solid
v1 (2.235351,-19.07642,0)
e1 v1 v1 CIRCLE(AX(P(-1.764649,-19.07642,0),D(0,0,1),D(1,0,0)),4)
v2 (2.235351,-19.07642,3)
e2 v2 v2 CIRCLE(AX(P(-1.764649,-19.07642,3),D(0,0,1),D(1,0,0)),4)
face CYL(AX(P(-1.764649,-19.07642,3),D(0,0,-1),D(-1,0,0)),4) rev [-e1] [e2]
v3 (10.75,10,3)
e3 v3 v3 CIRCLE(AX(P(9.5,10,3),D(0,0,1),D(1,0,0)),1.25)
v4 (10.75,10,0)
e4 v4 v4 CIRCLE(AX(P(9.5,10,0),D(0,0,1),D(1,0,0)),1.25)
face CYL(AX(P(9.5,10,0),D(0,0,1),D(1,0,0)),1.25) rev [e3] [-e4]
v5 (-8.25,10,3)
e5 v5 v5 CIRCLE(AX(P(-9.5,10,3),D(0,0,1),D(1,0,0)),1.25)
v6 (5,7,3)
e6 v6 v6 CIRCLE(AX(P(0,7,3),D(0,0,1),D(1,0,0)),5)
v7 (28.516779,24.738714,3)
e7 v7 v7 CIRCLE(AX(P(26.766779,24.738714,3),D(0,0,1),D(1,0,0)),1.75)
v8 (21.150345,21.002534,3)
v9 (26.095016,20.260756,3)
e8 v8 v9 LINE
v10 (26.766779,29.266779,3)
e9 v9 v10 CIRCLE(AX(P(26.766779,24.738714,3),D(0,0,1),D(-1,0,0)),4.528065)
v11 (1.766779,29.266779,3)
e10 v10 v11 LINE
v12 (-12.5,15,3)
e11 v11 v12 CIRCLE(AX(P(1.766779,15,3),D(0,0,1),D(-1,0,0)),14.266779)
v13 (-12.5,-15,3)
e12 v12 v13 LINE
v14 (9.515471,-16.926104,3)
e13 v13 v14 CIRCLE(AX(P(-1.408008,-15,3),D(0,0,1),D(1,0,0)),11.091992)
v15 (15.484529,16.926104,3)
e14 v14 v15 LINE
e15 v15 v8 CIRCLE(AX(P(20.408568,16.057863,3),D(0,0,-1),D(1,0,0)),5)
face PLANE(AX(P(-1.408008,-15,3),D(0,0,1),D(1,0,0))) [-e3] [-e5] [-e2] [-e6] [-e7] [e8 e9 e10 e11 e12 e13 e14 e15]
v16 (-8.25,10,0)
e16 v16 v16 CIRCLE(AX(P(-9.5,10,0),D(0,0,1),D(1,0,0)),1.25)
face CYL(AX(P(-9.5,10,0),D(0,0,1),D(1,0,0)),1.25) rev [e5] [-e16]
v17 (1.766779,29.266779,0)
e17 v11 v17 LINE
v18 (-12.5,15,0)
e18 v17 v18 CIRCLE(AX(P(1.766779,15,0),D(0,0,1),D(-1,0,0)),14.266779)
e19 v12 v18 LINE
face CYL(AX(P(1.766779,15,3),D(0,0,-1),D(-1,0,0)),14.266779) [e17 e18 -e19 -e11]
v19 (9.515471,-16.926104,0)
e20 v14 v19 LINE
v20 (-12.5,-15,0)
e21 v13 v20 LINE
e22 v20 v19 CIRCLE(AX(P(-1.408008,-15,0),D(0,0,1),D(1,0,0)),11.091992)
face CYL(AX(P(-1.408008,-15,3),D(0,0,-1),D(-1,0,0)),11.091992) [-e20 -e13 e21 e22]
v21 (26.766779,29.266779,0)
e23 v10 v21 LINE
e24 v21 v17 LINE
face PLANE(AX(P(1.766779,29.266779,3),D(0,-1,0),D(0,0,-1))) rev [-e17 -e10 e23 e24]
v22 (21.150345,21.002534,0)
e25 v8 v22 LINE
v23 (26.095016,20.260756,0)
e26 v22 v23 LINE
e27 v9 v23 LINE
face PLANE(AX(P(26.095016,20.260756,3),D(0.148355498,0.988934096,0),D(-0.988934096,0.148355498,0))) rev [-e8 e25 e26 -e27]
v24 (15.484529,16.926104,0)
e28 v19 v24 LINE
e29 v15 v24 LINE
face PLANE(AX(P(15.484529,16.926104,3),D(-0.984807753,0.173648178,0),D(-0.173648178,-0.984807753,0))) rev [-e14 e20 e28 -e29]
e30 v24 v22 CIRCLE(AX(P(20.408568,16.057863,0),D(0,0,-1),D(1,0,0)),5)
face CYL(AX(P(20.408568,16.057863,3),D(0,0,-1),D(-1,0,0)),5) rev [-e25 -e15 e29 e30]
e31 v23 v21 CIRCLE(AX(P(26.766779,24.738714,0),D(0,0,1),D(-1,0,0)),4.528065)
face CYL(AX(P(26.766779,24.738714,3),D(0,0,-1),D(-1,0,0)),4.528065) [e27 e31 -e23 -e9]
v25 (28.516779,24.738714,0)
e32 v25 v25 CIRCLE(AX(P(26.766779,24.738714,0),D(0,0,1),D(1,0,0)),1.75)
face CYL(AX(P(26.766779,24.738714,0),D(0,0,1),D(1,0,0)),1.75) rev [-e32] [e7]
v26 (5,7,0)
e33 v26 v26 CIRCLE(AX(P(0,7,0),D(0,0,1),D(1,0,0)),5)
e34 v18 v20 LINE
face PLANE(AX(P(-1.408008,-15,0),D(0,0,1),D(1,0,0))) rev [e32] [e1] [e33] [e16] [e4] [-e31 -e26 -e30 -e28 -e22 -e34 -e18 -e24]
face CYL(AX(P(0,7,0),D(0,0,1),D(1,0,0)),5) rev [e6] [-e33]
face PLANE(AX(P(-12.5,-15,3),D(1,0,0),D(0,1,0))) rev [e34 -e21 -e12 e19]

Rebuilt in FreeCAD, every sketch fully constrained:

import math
import FreeCAD as App
import Part
import Sketcher

V = App.Vector
Q = App.Units.Quantity

doc = App.newDocument("Part")
body = doc.addObject("PartDesign::Body", "Body")

sketch1 = doc.addObject("Sketcher::SketchObject", "Sketch")
body.addObject(sketch1)
sketch1.AttachmentSupport = (doc.XY_Plane, [""])
sketch1.MapMode = "FlatFace"
sketch1.addGeometry(Part.LineSegment(V(-12.5, 15, 0), V(-12.5, -15, 0)), False)
sketch1.addGeometry(Part.ArcOfCircle(Part.Circle(V(-1.4, -15, 0), V(0, 0, 1), 11.1), math.radians(180), math.radians(350)), False)
sketch1.addGeometry(Part.LineSegment(V(9.5, -16.9, 0), V(15.5, 16.9, 0)), False)
sketch1.addGeometry(Part.ArcOfCircle(Part.Circle(V(20.4, 16.1, 0), V(0, 0, 1), 5), math.radians(81), math.radians(170)), False)
sketch1.addGeometry(Part.LineSegment(V(21.2, 21, 0), V(26.1, 20.3, 0)), False)
sketch1.addGeometry(Part.ArcOfCircle(Part.Circle(V(26.8, 24.7, 0), V(0, 0, 1), 4.5), math.radians(-99), math.radians(90)), False)
sketch1.addGeometry(Part.LineSegment(V(26.8, 29.3, 0), V(1.8, 29.3, 0)), False)
sketch1.addGeometry(Part.ArcOfCircle(Part.Circle(V(1.8, 15, 0), V(0, 0, 1), 14.3), math.radians(90), math.radians(180)), False)
sketch1.addGeometry(Part.Circle(V(-1.8, -19.1, 0), V(0, 0, 1), 4), False)
sketch1.addConstraint(Sketcher.Constraint("Tangent", 0, 2, 1, 1))
sketch1.addConstraint(Sketcher.Constraint("Tangent", 1, 2, 2, 1))
sketch1.addConstraint(Sketcher.Constraint("Tangent", 2, 2, 3, 2))
sketch1.addConstraint(Sketcher.Constraint("Tangent", 3, 1, 4, 1))
sketch1.addConstraint(Sketcher.Constraint("Tangent", 4, 2, 5, 1))
sketch1.addConstraint(Sketcher.Constraint("Tangent", 5, 2, 6, 1))
sketch1.addConstraint(Sketcher.Constraint("Tangent", 6, 2, 7, 1))
sketch1.addConstraint(Sketcher.Constraint("Tangent", 7, 2, 0, 1))
sketch1.addConstraint(Sketcher.Constraint("Vertical", 0))
sketch1.addConstraint(Sketcher.Constraint("Horizontal", 6))
sketch1.addConstraint(Sketcher.Constraint("Diameter", 8, Q("8 mm")))
sketch1.addConstraint(Sketcher.Constraint("Radius", 3, Q("5 mm")))
sketch1.addConstraint(Sketcher.Constraint("DistanceX", 6, 2, 6, 1, Q("25 mm")))
sketch1.addConstraint(Sketcher.Constraint("DistanceY", 0, 2, 0, 1, Q("30 mm")))
sketch1.addConstraint(Sketcher.Constraint("Angle", 2, Q("80 deg")))
sketch1.addConstraint(Sketcher.Constraint("Distance", 4, Q("5 mm")))
sketch1.addConstraint(Sketcher.Constraint("DistanceY", 1, 3, -1, 1, Q("15 mm")))
sketch1.addConstraint(Sketcher.Constraint("DistanceX", 0, 2, -1, 1, Q("12.5 mm")))
sketch1.addConstraint(Sketcher.Constraint("Radius", 1, Q("11.091992 mm")))
sketch1.addConstraint(Sketcher.Constraint("Radius", 7, Q("14.266779 mm")))
sketch1.addConstraint(Sketcher.Constraint("Radius", 5, Q("4.528065 mm")))
sketch1.addConstraint(Sketcher.Constraint("DistanceX", 8, 3, -1, 1, Q("1.764649 mm")))
sketch1.addConstraint(Sketcher.Constraint("DistanceY", 8, 3, -1, 1, Q("19.07642 mm")))
pad1 = doc.addObject("PartDesign::Pad", "Pad")
body.addObject(pad1)
pad1.Profile = sketch1
pad1.Length = 3

sketch2 = doc.addObject("Sketcher::SketchObject", "Sketch001")
body.addObject(sketch2)
sketch2.AttachmentSupport = (doc.XY_Plane, [""])
sketch2.MapMode = "FlatFace"
sketch2.AttachmentOffset = App.Placement(V(0, 0, 3), App.Rotation())
sketch2.addGeometry(Part.Circle(V(-9.5, 10, 0), V(0, 0, 1), 1.2), False)
sketch2.addGeometry(Part.Circle(V(9.5, 10, 0), V(0, 0, 1), 1.2), False)
sketch2.addGeometry(Part.Circle(V(0, 7, 0), V(0, 0, 1), 5), False)
sketch2.addConstraint(Sketcher.Constraint("Equal", 0, 1))
sketch2.addConstraint(Sketcher.Constraint("Symmetric", 0, 3, 1, 3, -2))
sketch2.addConstraint(Sketcher.Constraint("PointOnObject", 2, 3, -2))
sketch2.addConstraint(Sketcher.Constraint("Diameter", 2, Q("10 mm")))
sketch2.addConstraint(Sketcher.Constraint("Diameter", 0, Q("2.5 mm")))
sketch2.addConstraint(Sketcher.Constraint("DistanceY", -1, 1, 0, 3, Q("10 mm")))
sketch2.addConstraint(Sketcher.Constraint("DistanceY", -1, 1, 2, 3, Q("7 mm")))
sketch2.addConstraint(Sketcher.Constraint("DistanceX", 0, 3, 1, 3, Q("19 mm")))
pocket1 = doc.addObject("PartDesign::Pocket", "Pocket")
body.addObject(pocket1)
pocket1.Profile = sketch2
pocket1.Type = "ThroughAll"

sketch3 = doc.addObject("Sketcher::SketchObject", "Sketch002")
body.addObject(sketch3)
sketch3.AttachmentSupport = (doc.XY_Plane, [""])
sketch3.MapMode = "FlatFace"
sketch3.AttachmentOffset = App.Placement(V(0, 0, 3), App.Rotation())
sketch3.addGeometry(Part.Circle(V(26.8, 24.7, 0), V(0, 0, 1), 1.8), False)
sketch3.addConstraint(Sketcher.Constraint("Diameter", 0, Q("3.5 mm")))
sketch3.addConstraint(Sketcher.Constraint("DistanceX", -1, 1, 0, 3, Q("26.766779 mm")))
sketch3.addConstraint(Sketcher.Constraint("DistanceY", -1, 1, 0, 3, Q("24.738714 mm")))
pocket2 = doc.addObject("PartDesign::Pocket", "Pocket001")
body.addObject(pocket2)
pocket2.Profile = sketch3
pocket2.Type = "ThroughAll"

doc.recompute()
